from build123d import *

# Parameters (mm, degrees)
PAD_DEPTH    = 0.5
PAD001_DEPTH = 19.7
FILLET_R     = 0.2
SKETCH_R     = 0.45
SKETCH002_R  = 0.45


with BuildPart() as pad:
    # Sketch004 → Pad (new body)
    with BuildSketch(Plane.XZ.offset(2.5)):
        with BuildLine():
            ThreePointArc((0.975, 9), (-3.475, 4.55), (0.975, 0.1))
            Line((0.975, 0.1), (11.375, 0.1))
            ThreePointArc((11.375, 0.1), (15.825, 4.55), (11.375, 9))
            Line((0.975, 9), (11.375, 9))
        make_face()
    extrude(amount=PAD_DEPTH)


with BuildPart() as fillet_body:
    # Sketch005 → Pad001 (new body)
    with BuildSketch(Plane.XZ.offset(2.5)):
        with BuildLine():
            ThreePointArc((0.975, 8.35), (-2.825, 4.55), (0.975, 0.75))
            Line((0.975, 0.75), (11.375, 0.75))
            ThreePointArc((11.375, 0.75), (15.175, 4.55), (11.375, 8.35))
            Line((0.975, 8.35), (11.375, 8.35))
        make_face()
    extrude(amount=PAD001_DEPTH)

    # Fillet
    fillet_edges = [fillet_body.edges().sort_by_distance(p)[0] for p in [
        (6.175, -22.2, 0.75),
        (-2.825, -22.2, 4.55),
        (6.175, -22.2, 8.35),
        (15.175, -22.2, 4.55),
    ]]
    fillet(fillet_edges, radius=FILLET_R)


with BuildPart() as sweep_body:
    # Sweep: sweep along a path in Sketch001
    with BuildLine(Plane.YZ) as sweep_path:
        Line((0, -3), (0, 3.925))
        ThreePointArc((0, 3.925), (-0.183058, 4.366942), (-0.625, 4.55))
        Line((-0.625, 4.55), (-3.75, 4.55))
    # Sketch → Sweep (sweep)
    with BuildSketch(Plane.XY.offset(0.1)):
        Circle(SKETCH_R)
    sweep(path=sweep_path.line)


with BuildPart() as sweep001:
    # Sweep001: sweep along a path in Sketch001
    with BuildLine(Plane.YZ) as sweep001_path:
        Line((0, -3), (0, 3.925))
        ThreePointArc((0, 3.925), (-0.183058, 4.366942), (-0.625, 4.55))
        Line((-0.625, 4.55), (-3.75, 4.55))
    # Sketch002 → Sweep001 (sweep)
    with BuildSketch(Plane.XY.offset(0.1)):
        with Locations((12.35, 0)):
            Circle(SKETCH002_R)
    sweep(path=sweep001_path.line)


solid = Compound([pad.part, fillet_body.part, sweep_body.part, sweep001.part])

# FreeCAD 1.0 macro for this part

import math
import FreeCAD as App
import Part
import Sketcher

V = App.Vector
Q = App.Units.Quantity


def edges_at(feature, points):
    """Names of the edges that pass closest to the given points."""
    edges = feature.Shape.Edges
    near = lambda p: min(range(len(edges)), key=lambda i: edges[i].distToShape(Part.Vertex(*p))[0])
    return sorted({f"Edge{near(p) + 1}" for p in points})

doc = App.newDocument("Part")
body = doc.addObject("PartDesign::Body", "Body")

sketch1 = body.newObject("Sketcher::SketchObject", "Sketch")
sketch1.AttachmentSupport = (doc.getObject("XZ_Plane"), [""])
sketch1.MapMode = "FlatFace"
sketch1.AttachmentOffset = App.Placement(V(0, 0, 2.5), App.Rotation())
sketch1.addGeometry([
    Part.ArcOfCircle(Part.Circle(V(1, 4.5, 0), V(0, 0, 1), 4.5), math.radians(90), math.radians(270)),
    Part.LineSegment(V(1, 0.1, 0), V(11.4, 0.1, 0)),
    Part.ArcOfCircle(Part.Circle(V(11.4, 4.5, 0), V(0, 0, 1), 4.5), math.radians(-90), math.radians(90)),
    Part.LineSegment(V(11.4, 9, 0), V(1, 9, 0)),
], False)
sketch1.addConstraint([
    Sketcher.Constraint("Tangent", 0, 2, 1, 1),
    Sketcher.Constraint("Tangent", 1, 2, 2, 1),
    Sketcher.Constraint("Tangent", 2, 2, 3, 1),
    Sketcher.Constraint("Tangent", 3, 2, 0, 1),
    Sketcher.Constraint("Horizontal", 1),
    Sketcher.Constraint("Horizontal", 3),
    Sketcher.Constraint("Radius", 0, Q("4.45 mm")),
    Sketcher.Constraint("DistanceX", 1, 1, 1, 2, Q("10.4 mm")),
    Sketcher.Constraint("DistanceY", -1, 1, 2, 2, Q("9 mm")),
    Sketcher.Constraint("DistanceX", -1, 1, 0, 3, Q("0.975 mm")),
])
pad1 = body.newObject("PartDesign::Pad", "Pad")
pad1.Profile = sketch1
pad1.Length = 0.5
body2 = doc.addObject("PartDesign::Body", "Body001")

sketch2 = body2.newObject("Sketcher::SketchObject", "Sketch001")
sketch2.AttachmentSupport = (doc.getObject("XZ_Plane001"), [""])
sketch2.MapMode = "FlatFace"
sketch2.AttachmentOffset = App.Placement(V(0, 0, 2.5), App.Rotation())
sketch2.addGeometry([
    Part.ArcOfCircle(Part.Circle(V(1, 4.5, 0), V(0, 0, 1), 3.8), math.radians(90), math.radians(270)),
    Part.LineSegment(V(1, 0.8, 0), V(11.4, 0.8, 0)),
    Part.ArcOfCircle(Part.Circle(V(11.4, 4.5, 0), V(0, 0, 1), 3.8), math.radians(-90), math.radians(90)),
    Part.LineSegment(V(11.4, 8.3, 0), V(1, 8.3, 0)),
], False)
sketch2.addConstraint([
    Sketcher.Constraint("Tangent", 0, 2, 1, 1),
    Sketcher.Constraint("Tangent", 1, 2, 2, 1),
    Sketcher.Constraint("Tangent", 2, 2, 3, 1),
    Sketcher.Constraint("Tangent", 3, 2, 0, 1),
    Sketcher.Constraint("Horizontal", 1),
    Sketcher.Constraint("Horizontal", 3),
    Sketcher.Constraint("Radius", 0, Q("3.8 mm")),
    Sketcher.Constraint("DistanceX", 1, 1, 1, 2, Q("10.4 mm")),
    Sketcher.Constraint("DistanceY", -1, 1, 0, 3, Q("4.55 mm")),
    Sketcher.Constraint("DistanceX", -1, 1, 0, 3, Q("0.975 mm")),
])
pad2 = body2.newObject("PartDesign::Pad", "Pad001")
pad2.Profile = sketch2
pad2.Length = 19.7
doc.recompute()

fillet = body2.newObject("PartDesign::Fillet", "Fillet")
fillet.Base = (pad2, edges_at(pad2, [
    (6.175, -22.2, 0.75),
    (-2.825, -22.2, 4.55),
    (6.175, -22.2, 8.35),
    (15.175, -22.2, 4.55),
]))
fillet.Radius = 0.2
body3 = doc.addObject("PartDesign::Body", "Body002")

sketch3 = body3.newObject("Sketcher::SketchObject", "Sketch002")
sketch3.AttachmentSupport = (doc.getObject("XY_Plane002"), [""])
sketch3.MapMode = "FlatFace"
sketch3.AttachmentOffset = App.Placement(V(0, 0, 0.1), App.Rotation())
sketch3.addGeometry(Part.Circle(V(0, 0, 0), V(0, 0, 1), 0.45), False)
sketch3.addConstraint([
    Sketcher.Constraint("Coincident", 0, 3, -1, 1),
    Sketcher.Constraint("Diameter", 0, Q("0.9 mm")),
])

sketch4 = body3.newObject("Sketcher::SketchObject", "Sketch003")
sketch4.AttachmentSupport = (doc.getObject("YZ_Plane002"), [""])
sketch4.MapMode = "FlatFace"
sketch4.addGeometry([
    Part.LineSegment(V(0, -3, 0), V(0, 3.9, 0)),
    Part.ArcOfCircle(Part.Circle(V(-0.6, 3.9, 0), V(0, 0, 1), 0.6), math.radians(0), math.radians(90)),
    Part.LineSegment(V(-0.6, 4.5, 0), V(-3.8, 4.5, 0)),
], False)
sketch4.addConstraint([
    Sketcher.Constraint("Tangent", 0, 2, 1, 1),
    Sketcher.Constraint("Tangent", 1, 2, 2, 1),
    Sketcher.Constraint("Vertical", 0),
    Sketcher.Constraint("Horizontal", 2),
    Sketcher.Constraint("PointOnObject", 0, 1, -2),
    Sketcher.Constraint("DistanceY", 0, 1, -1, 1, Q("3 mm")),
    Sketcher.Constraint("Radius", 1, Q("0.624999 mm")),
    Sketcher.Constraint("DistanceX", 2, 2, 2, 1, Q("3.125 mm")),
    Sketcher.Constraint("DistanceY", 0, 1, 0, 2, Q("6.925 mm")),
])
doc.recompute()

additivepipe = body3.newObject("PartDesign::AdditivePipe", "AdditivePipe")
additivepipe.Profile = sketch3
additivepipe.Spine = (sketch4, ["Edge1", "Edge2", "Edge3"])
body4 = doc.addObject("PartDesign::Body", "Body003")

sketch5 = body4.newObject("Sketcher::SketchObject", "Sketch004")
sketch5.AttachmentSupport = (doc.getObject("XY_Plane003"), [""])
sketch5.MapMode = "FlatFace"
sketch5.AttachmentOffset = App.Placement(V(0, 0, 0.1), App.Rotation())
sketch5.addGeometry(Part.Circle(V(12.35, 0, 0), V(0, 0, 1), 0.45), False)
sketch5.addConstraint([
    Sketcher.Constraint("PointOnObject", 0, 3, -1),
    Sketcher.Constraint("Diameter", 0, Q("0.9 mm")),
    Sketcher.Constraint("DistanceX", -1, 1, 0, 3, Q("12.35 mm")),
])

sketch6 = body4.newObject("Sketcher::SketchObject", "Sketch005")
sketch6.AttachmentSupport = (doc.getObject("YZ_Plane003"), [""])
sketch6.MapMode = "FlatFace"
sketch6.addGeometry([
    Part.LineSegment(V(0, -3, 0), V(0, 3.9, 0)),
    Part.ArcOfCircle(Part.Circle(V(-0.6, 3.9, 0), V(0, 0, 1), 0.6), math.radians(0), math.radians(90)),
    Part.LineSegment(V(-0.6, 4.5, 0), V(-3.8, 4.5, 0)),
], False)
sketch6.addConstraint([
    Sketcher.Constraint("Tangent", 0, 2, 1, 1),
    Sketcher.Constraint("Tangent", 1, 2, 2, 1),
    Sketcher.Constraint("Vertical", 0),
    Sketcher.Constraint("Horizontal", 2),
    Sketcher.Constraint("PointOnObject", 0, 1, -2),
    Sketcher.Constraint("DistanceY", 0, 1, -1, 1, Q("3 mm")),
    Sketcher.Constraint("Radius", 1, Q("0.624999 mm")),
    Sketcher.Constraint("DistanceX", 2, 2, 2, 1, Q("3.125 mm")),
    Sketcher.Constraint("DistanceY", 0, 1, 0, 2, Q("6.925 mm")),
])
doc.recompute()

additivepipe2 = body4.newObject("PartDesign::AdditivePipe", "AdditivePipe001")
additivepipe2.Profile = sketch5
additivepipe2.Spine = (sketch6, ["Edge1", "Edge2", "Edge3"])

doc.recompute()
